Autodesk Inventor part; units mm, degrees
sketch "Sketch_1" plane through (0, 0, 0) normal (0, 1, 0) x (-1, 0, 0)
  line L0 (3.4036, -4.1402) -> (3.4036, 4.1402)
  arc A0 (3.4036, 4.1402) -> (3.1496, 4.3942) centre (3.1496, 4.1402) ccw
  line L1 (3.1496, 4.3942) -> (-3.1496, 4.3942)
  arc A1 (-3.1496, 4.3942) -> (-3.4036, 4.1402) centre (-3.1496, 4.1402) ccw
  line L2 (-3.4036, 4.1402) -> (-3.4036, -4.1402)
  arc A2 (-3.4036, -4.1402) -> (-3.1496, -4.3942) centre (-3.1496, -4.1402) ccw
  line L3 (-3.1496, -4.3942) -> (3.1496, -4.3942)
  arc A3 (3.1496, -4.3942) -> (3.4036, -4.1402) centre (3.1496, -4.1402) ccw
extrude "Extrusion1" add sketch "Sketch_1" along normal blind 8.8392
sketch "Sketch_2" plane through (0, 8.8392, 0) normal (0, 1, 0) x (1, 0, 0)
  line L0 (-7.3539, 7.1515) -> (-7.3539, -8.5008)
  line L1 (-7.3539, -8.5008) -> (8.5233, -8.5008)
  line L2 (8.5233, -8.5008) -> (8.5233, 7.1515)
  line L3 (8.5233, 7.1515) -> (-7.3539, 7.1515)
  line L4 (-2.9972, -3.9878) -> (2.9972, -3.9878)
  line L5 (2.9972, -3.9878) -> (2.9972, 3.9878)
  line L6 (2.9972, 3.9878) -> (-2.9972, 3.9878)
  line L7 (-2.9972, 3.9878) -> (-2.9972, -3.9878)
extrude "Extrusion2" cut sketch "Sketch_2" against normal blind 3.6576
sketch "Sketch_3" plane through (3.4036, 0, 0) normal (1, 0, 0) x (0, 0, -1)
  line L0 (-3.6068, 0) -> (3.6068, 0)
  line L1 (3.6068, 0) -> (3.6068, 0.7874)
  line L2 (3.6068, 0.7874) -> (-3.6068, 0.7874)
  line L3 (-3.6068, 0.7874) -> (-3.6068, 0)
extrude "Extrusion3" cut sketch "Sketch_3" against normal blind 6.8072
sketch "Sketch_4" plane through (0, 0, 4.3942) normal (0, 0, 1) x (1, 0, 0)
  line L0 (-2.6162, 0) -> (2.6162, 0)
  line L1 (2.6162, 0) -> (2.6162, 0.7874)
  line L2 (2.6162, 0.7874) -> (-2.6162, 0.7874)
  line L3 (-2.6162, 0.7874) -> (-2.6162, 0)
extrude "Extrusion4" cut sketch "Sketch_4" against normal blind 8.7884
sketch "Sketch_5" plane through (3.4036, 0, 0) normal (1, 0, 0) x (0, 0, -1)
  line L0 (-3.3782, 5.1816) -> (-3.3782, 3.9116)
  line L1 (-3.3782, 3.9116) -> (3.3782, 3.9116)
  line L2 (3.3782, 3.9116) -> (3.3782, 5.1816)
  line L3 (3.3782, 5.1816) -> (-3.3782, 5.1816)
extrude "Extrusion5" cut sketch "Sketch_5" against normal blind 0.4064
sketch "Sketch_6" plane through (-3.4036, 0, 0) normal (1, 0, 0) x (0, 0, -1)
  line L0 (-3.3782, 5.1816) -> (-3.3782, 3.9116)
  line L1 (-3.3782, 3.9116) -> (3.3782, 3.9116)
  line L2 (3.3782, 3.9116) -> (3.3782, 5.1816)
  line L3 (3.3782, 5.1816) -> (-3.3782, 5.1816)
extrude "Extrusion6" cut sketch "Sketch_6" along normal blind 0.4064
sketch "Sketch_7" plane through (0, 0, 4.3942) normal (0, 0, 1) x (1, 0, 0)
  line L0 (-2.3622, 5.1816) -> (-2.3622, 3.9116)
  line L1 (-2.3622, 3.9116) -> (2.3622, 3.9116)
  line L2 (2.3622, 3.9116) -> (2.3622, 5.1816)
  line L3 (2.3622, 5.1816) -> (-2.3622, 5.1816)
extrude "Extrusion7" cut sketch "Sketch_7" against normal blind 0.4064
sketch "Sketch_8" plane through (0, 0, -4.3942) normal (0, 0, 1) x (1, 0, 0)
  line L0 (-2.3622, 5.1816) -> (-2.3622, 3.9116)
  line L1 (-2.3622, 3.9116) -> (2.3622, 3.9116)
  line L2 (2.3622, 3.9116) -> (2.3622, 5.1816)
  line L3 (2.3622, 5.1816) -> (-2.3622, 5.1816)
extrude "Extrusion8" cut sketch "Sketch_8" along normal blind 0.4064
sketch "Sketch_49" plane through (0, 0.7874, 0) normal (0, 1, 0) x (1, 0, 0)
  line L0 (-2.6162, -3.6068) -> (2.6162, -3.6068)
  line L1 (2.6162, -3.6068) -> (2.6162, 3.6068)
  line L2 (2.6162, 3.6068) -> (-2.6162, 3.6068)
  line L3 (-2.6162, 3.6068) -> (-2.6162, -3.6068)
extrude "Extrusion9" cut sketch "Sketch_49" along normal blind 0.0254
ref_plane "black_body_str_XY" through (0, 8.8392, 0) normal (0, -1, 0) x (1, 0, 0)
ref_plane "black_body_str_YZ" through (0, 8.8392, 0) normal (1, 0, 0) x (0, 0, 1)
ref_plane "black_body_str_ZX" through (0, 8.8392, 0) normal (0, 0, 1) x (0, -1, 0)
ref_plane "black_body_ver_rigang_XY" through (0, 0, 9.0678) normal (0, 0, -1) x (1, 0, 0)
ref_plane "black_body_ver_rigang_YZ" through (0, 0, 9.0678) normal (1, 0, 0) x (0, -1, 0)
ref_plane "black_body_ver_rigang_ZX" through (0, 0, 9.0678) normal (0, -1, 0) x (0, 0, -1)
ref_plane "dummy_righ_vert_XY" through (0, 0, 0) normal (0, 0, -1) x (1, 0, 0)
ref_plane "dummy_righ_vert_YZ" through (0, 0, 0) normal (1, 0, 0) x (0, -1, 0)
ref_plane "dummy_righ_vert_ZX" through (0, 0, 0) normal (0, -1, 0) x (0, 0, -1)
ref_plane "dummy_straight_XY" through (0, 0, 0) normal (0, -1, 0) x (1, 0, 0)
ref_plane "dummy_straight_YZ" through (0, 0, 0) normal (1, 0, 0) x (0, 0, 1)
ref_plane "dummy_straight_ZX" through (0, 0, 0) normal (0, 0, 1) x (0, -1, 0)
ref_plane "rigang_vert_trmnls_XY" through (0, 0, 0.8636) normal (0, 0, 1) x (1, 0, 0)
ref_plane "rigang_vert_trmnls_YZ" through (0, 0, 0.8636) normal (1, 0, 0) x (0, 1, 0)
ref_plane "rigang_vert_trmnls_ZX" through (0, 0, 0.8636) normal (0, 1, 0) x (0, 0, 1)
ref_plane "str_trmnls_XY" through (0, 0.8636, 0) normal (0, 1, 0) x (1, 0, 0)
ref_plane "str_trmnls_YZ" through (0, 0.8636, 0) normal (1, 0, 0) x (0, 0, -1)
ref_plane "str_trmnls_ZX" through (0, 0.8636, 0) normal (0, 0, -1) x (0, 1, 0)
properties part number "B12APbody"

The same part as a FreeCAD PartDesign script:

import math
import FreeCAD as App
import Part
import Sketcher

V = App.Vector
Q = App.Units.Quantity


def add_polygon(sketch, points):
    """Adds a closed chain of lines whose ends are joined by coincident constraints."""
    first, n = sketch.GeometryCount, len(points)
    for a, b in zip(points, points[1:] + points[:1]):
        sketch.addGeometry(Part.LineSegment(App.Vector(*a, 0), App.Vector(*b, 0)), False)
    for i in range(n):
        sketch.addConstraint(Sketcher.Constraint("Coincident", first + i, 2, first + (i + 1) % n, 1))

doc = App.newDocument("Part")
body = doc.addObject("PartDesign::Body", "Body")

# Sketch on XZ plane
sketch1 = body.newObject("Sketcher::SketchObject", "Sketch")
sketch1.AttachmentSupport = (doc.getObject("XZ_Plane"), [""])
sketch1.MapMode = "FlatFace"
sketch1.addGeometry(Part.ArcOfCircle(Part.Circle(V(-3.15, -4.14, 0), V(0, 0, 1), 0.25), math.radians(180), math.radians(270)), False)
sketch1.addGeometry(Part.LineSegment(V(-3.4, -4.14, 0), V(-3.4, 4.14, 0)), False)
sketch1.addGeometry(Part.ArcOfCircle(Part.Circle(V(-3.15, 4.14, 0), V(0, 0, 1), 0.25), math.radians(90), math.radians(180)), False)
sketch1.addGeometry(Part.LineSegment(V(-3.15, 4.39, 0), V(3.15, 4.39, 0)), False)
sketch1.addGeometry(Part.ArcOfCircle(Part.Circle(V(3.15, 4.14, 0), V(0, 0, 1), 0.25), math.radians(0), math.radians(90)), False)
sketch1.addGeometry(Part.LineSegment(V(3.4, 4.14, 0), V(3.4, -4.14, 0)), False)
sketch1.addGeometry(Part.ArcOfCircle(Part.Circle(V(3.15, -4.14, 0), V(0, 0, 1), 0.25), math.radians(-90), math.radians(0)), False)
sketch1.addGeometry(Part.LineSegment(V(3.15, -4.39, 0), V(-3.15, -4.39, 0)), False)
sketch1.addConstraint(Sketcher.Constraint("Tangent", 0, 1, 1, 1))
sketch1.addConstraint(Sketcher.Constraint("Tangent", 1, 2, 2, 2))
sketch1.addConstraint(Sketcher.Constraint("Tangent", 2, 1, 3, 1))
sketch1.addConstraint(Sketcher.Constraint("Tangent", 3, 2, 4, 2))
sketch1.addConstraint(Sketcher.Constraint("Tangent", 4, 1, 5, 1))
sketch1.addConstraint(Sketcher.Constraint("Tangent", 5, 2, 6, 2))
sketch1.addConstraint(Sketcher.Constraint("Tangent", 6, 1, 7, 1))
sketch1.addConstraint(Sketcher.Constraint("Tangent", 7, 2, 0, 2))
sketch1.addConstraint(Sketcher.Constraint("Vertical", 1))
sketch1.addConstraint(Sketcher.Constraint("Horizontal", 3))
sketch1.addConstraint(Sketcher.Constraint("Vertical", 5))
sketch1.addConstraint(Sketcher.Constraint("Horizontal", 7))
sketch1.addConstraint(Sketcher.Constraint("Equal", 0, 2))
sketch1.addConstraint(Sketcher.Constraint("Equal", 2, 4))
sketch1.addConstraint(Sketcher.Constraint("Equal", 4, 6))
sketch1.addConstraint(Sketcher.Constraint("Symmetric", 0, 3, 4, 3, -1, 1))
sketch1.addConstraint(Sketcher.Constraint("Radius", 0, Q("0.01 in")))
sketch1.addConstraint(Sketcher.Constraint("DistanceX", 3, 1, 3, 2, Q("0.248 in")))
sketch1.addConstraint(Sketcher.Constraint("DistanceY", 1, 1, 1, 2, Q("0.326 in")))
pad1 = body.newObject("PartDesign::Pad", "Pad")
pad1.Profile = sketch1
pad1.Length = Q("0.348 in")
pad1.Reversed = True

# Sketch on XZ plane
sketch2 = body.newObject("Sketcher::SketchObject", "Sketch001")
sketch2.AttachmentSupport = (doc.getObject("XZ_Plane"), [""])
sketch2.MapMode = "FlatFace"
sketch2.AttachmentOffset = App.Placement(V(0, 0, -0.348 * 25.4), App.Rotation())
add_polygon(sketch2, [(9, -7), (-7, -7), (-7, 9), (9, 9)])  # lines 0-3
add_polygon(sketch2, [(3, 4), (-3, 4), (-3, -4), (3, -4)])  # lines 4-7
sketch2.addConstraint(Sketcher.Constraint("Horizontal", 0))
sketch2.addConstraint(Sketcher.Constraint("Vertical", 1))
sketch2.addConstraint(Sketcher.Constraint("Horizontal", 2))
sketch2.addConstraint(Sketcher.Constraint("Vertical", 3))
sketch2.addConstraint(Sketcher.Constraint("Horizontal", 4))
sketch2.addConstraint(Sketcher.Constraint("Vertical", 5))
sketch2.addConstraint(Sketcher.Constraint("Horizontal", 6))
sketch2.addConstraint(Sketcher.Constraint("Vertical", 7))
sketch2.addConstraint(Sketcher.Constraint("Symmetric", 4, 2, 6, 2, -1, 1))
sketch2.addConstraint(Sketcher.Constraint("DistanceX", 4, 2, 4, 1, Q("0.236 in")))
sketch2.addConstraint(Sketcher.Constraint("DistanceY", 5, 2, 5, 1, Q("0.314 in")))
sketch2.addConstraint(Sketcher.Constraint("DistanceX", 0, 2, 0, 1, 15.8772))
sketch2.addConstraint(Sketcher.Constraint("DistanceY", 1, 1, 1, 2, 15.6523))
sketch2.addConstraint(Sketcher.Constraint("DistanceX", 0, 2, -1, 1, 7.354))
sketch2.addConstraint(Sketcher.Constraint("DistanceY", 0, 2, -1, 1, 7.1515))
pocket1 = body.newObject("PartDesign::Pocket", "Pocket")
pocket1.Profile = sketch2
pocket1.Length = Q("0.144 in")
pocket1.Reversed = True

# Sketch on YZ plane
sketch3 = body.newObject("Sketcher::SketchObject", "Sketch002")
sketch3.AttachmentSupport = (doc.getObject("YZ_Plane"), [""])
sketch3.MapMode = "FlatFace"
sketch3.AttachmentOffset = App.Placement(V(0, 0, 0.134 * 25.4), App.Rotation())
add_polygon(sketch3, [(0.8, 3.6), (0, 3.6), (0, -3.6), (0.8, -3.6)])  # lines 0-3
sketch3.addConstraint(Sketcher.Constraint("Horizontal", 0))
sketch3.addConstraint(Sketcher.Constraint("Vertical", 1))
sketch3.addConstraint(Sketcher.Constraint("Horizontal", 2))
sketch3.addConstraint(Sketcher.Constraint("Vertical", 3))
sketch3.addConstraint(Sketcher.Constraint("Symmetric", 0, 2, 1, 2, -1, 1))
sketch3.addConstraint(Sketcher.Constraint("DistanceX", 0, 2, 0, 1, Q("0.031 in")))
sketch3.addConstraint(Sketcher.Constraint("DistanceY", 1, 2, 1, 1, Q("0.284 in")))
pocket2 = body.newObject("PartDesign::Pocket", "Pocket001")
pocket2.Profile = sketch3
pocket2.Length = Q("0.268 in")

# Sketch on XY plane
sketch4 = body.newObject("Sketcher::SketchObject", "Sketch003")
sketch4.AttachmentSupport = (doc.getObject("XY_Plane"), [""])
sketch4.MapMode = "FlatFace"
sketch4.AttachmentOffset = App.Placement(V(0, 0, 0.173 * 25.4), App.Rotation())
add_polygon(sketch4, [(-2.6, 0.8), (-2.6, 0), (2.6, 0), (2.6, 0.8)])  # lines 0-3
sketch4.addConstraint(Sketcher.Constraint("Vertical", 0))
sketch4.addConstraint(Sketcher.Constraint("Horizontal", 1))
sketch4.addConstraint(Sketcher.Constraint("Vertical", 2))
sketch4.addConstraint(Sketcher.Constraint("Horizontal", 3))
sketch4.addConstraint(Sketcher.Constraint("Symmetric", 0, 2, 1, 2, -1, 1))
sketch4.addConstraint(Sketcher.Constraint("DistanceX", 1, 1, 1, 2, Q("0.206 in")))
sketch4.addConstraint(Sketcher.Constraint("DistanceY", 0, 2, 0, 1, Q("0.031 in")))
pocket3 = body.newObject("PartDesign::Pocket", "Pocket002")
pocket3.Profile = sketch4
pocket3.Length = Q("0.346 in")

# Sketch on YZ plane
sketch5 = body.newObject("Sketcher::SketchObject", "Sketch004")
sketch5.AttachmentSupport = (doc.getObject("YZ_Plane"), [""])
sketch5.MapMode = "FlatFace"
sketch5.AttachmentOffset = App.Placement(V(0, 0, 0.134 * 25.4), App.Rotation())
add_polygon(sketch5, [(5.2, -3.4), (5.2, 3.4), (3.9, 3.4), (3.9, -3.4)])  # lines 0-3
sketch5.addConstraint(Sketcher.Constraint("Vertical", 0))
sketch5.addConstraint(Sketcher.Constraint("Horizontal", 1))
sketch5.addConstraint(Sketcher.Constraint("Vertical", 2))
sketch5.addConstraint(Sketcher.Constraint("Horizontal", 3))
sketch5.addConstraint(Sketcher.Constraint("DistanceX", 1, 2, 1, 1, Q("0.05 in")))
sketch5.addConstraint(Sketcher.Constraint("DistanceY", 0, 1, 0, 2, Q("0.266 in")))
sketch5.addConstraint(Sketcher.Constraint("DistanceX", -1, 1, 0, 2, Q("0.204 in")))
sketch5.addConstraint(Sketcher.Constraint("DistanceY", -1, 1, 0, 2, Q("0.133 in")))
pocket4 = body.newObject("PartDesign::Pocket", "Pocket003")
pocket4.Profile = sketch5
pocket4.Length = Q("0.016 in")

# Sketch on YZ plane
sketch6 = body.newObject("Sketcher::SketchObject", "Sketch005")
sketch6.AttachmentSupport = (doc.getObject("YZ_Plane"), [""])
sketch6.MapMode = "FlatFace"
sketch6.AttachmentOffset = App.Placement(V(0, 0, -0.134 * 25.4), App.Rotation())
add_polygon(sketch6, [(5.2, -3.4), (5.2, 3.4), (3.9, 3.4), (3.9, -3.4)])  # lines 0-3
sketch6.addConstraint(Sketcher.Constraint("Vertical", 0))
sketch6.addConstraint(Sketcher.Constraint("Horizontal", 1))
sketch6.addConstraint(Sketcher.Constraint("Vertical", 2))
sketch6.addConstraint(Sketcher.Constraint("Horizontal", 3))
sketch6.addConstraint(Sketcher.Constraint("DistanceX", 1, 2, 1, 1, Q("0.05 in")))
sketch6.addConstraint(Sketcher.Constraint("DistanceY", 0, 1, 0, 2, Q("0.266 in")))
sketch6.addConstraint(Sketcher.Constraint("DistanceX", -1, 1, 0, 2, Q("0.204 in")))
sketch6.addConstraint(Sketcher.Constraint("DistanceY", -1, 1, 0, 2, Q("0.133 in")))
pocket5 = body.newObject("PartDesign::Pocket", "Pocket004")
pocket5.Profile = sketch6
pocket5.Length = Q("0.016 in")
pocket5.Reversed = True

# Sketch on XY plane
sketch7 = body.newObject("Sketcher::SketchObject", "Sketch006")
sketch7.AttachmentSupport = (doc.getObject("XY_Plane"), [""])
sketch7.MapMode = "FlatFace"
sketch7.AttachmentOffset = App.Placement(V(0, 0, 0.173 * 25.4), App.Rotation())
add_polygon(sketch7, [(2.4, 5.2), (-2.4, 5.2), (-2.4, 3.9), (2.4, 3.9)])  # lines 0-3
sketch7.addConstraint(Sketcher.Constraint("Horizontal", 0))
sketch7.addConstraint(Sketcher.Constraint("Vertical", 1))
sketch7.addConstraint(Sketcher.Constraint("Horizontal", 2))
sketch7.addConstraint(Sketcher.Constraint("Vertical", 3))
sketch7.addConstraint(Sketcher.Constraint("DistanceY", 1, 2, 1, 1, Q("0.05 in")))
sketch7.addConstraint(Sketcher.Constraint("DistanceX", 0, 2, 0, 1, Q("0.186 in")))
sketch7.addConstraint(Sketcher.Constraint("DistanceX", 0, 2, -1, 1, Q("0.093 in")))
sketch7.addConstraint(Sketcher.Constraint("DistanceY", -1, 1, 0, 2, Q("0.204 in")))
pocket6 = body.newObject("PartDesign::Pocket", "Pocket005")
pocket6.Profile = sketch7
pocket6.Length = Q("0.016 in")

# Sketch on XY plane
sketch8 = body.newObject("Sketcher::SketchObject", "Sketch007")
sketch8.AttachmentSupport = (doc.getObject("XY_Plane"), [""])
sketch8.MapMode = "FlatFace"
sketch8.AttachmentOffset = App.Placement(V(0, 0, -0.173 * 25.4), App.Rotation())
add_polygon(sketch8, [(2.4, 5.2), (-2.4, 5.2), (-2.4, 3.9), (2.4, 3.9)])  # lines 0-3
sketch8.addConstraint(Sketcher.Constraint("Horizontal", 0))
sketch8.addConstraint(Sketcher.Constraint("Vertical", 1))
sketch8.addConstraint(Sketcher.Constraint("Horizontal", 2))
sketch8.addConstraint(Sketcher.Constraint("Vertical", 3))
sketch8.addConstraint(Sketcher.Constraint("DistanceY", 1, 2, 1, 1, Q("0.05 in")))
sketch8.addConstraint(Sketcher.Constraint("DistanceX", 0, 2, 0, 1, Q("0.186 in")))
sketch8.addConstraint(Sketcher.Constraint("DistanceX", 0, 2, -1, 1, Q("0.093 in")))
sketch8.addConstraint(Sketcher.Constraint("DistanceY", -1, 1, 0, 2, Q("0.204 in")))
pocket7 = body.newObject("PartDesign::Pocket", "Pocket006")
pocket7.Profile = sketch8
pocket7.Length = Q("0.016 in")
pocket7.Reversed = True

# Sketch on XZ plane
sketch9 = body.newObject("Sketcher::SketchObject", "Sketch008")
sketch9.AttachmentSupport = (doc.getObject("XZ_Plane"), [""])
sketch9.MapMode = "FlatFace"
sketch9.AttachmentOffset = App.Placement(V(0, 0, -0.031 * 25.4), App.Rotation())
add_polygon(sketch9, [(-3, -4), (-3, 4), (3, 4), (3, -4)])  # lines 0-3
sketch9.addConstraint(Sketcher.Constraint("Vertical", 0))
sketch9.addConstraint(Sketcher.Constraint("Horizontal", 1))
sketch9.addConstraint(Sketcher.Constraint("Vertical", 2))
sketch9.addConstraint(Sketcher.Constraint("Horizontal", 3))
sketch9.addConstraint(Sketcher.Constraint("Symmetric", 0, 2, 2, 2, -1, 1))
sketch9.addConstraint(Sketcher.Constraint("DistanceX", 1, 1, 1, 2, Q("0.206 in")))
sketch9.addConstraint(Sketcher.Constraint("DistanceY", 0, 1, 0, 2, Q("0.284 in")))
pocket8 = body.newObject("PartDesign::Pocket", "Pocket007")
pocket8.Profile = sketch9
pocket8.Length = Q("0.001 in")

doc.recompute()
